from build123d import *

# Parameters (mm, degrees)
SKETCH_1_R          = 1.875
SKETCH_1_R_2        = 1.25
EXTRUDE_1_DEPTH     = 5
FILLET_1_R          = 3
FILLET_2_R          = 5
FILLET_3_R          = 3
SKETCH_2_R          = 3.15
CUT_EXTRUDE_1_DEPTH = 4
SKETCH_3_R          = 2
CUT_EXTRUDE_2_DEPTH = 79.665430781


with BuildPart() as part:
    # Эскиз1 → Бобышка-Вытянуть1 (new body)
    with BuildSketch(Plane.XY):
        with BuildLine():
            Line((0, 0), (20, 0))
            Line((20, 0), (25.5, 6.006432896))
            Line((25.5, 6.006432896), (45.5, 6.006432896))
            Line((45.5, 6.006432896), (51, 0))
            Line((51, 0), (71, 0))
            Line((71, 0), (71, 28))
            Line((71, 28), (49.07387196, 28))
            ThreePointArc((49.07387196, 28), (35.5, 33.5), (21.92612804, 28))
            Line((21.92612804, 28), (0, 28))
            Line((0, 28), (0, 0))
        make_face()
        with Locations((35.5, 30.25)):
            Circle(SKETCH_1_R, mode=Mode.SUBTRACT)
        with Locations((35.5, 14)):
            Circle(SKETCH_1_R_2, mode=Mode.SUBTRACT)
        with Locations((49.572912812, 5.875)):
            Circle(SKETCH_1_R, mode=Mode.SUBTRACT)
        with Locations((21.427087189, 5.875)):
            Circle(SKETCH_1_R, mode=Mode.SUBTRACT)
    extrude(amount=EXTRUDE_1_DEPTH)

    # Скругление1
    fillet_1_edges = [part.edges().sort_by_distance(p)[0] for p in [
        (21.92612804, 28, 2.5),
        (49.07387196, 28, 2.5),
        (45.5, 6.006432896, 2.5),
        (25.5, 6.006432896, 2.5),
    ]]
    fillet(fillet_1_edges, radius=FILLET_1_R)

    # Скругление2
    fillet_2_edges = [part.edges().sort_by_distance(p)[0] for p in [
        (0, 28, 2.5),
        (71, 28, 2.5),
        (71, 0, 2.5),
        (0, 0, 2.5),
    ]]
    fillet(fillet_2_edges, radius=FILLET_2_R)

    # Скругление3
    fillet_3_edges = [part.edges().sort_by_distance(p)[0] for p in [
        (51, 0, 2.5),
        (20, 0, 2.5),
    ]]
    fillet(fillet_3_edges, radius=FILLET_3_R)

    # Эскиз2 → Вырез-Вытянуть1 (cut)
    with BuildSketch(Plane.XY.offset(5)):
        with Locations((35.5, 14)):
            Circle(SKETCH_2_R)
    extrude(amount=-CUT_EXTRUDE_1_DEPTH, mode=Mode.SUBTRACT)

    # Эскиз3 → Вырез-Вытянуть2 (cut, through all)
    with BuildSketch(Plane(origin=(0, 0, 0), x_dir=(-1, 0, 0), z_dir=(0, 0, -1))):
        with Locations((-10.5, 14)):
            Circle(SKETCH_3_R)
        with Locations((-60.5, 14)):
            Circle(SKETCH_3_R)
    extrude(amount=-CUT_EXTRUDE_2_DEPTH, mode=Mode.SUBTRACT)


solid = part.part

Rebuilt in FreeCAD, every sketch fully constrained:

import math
import FreeCAD as App
import Part
import Sketcher

V = App.Vector


def edges_at(feature, points):
    """Names of the edges that pass closest to the given points."""
    edges = feature.Shape.Edges
    near = lambda p: min(range(len(edges)), key=lambda i: edges[i].distToShape(Part.Vertex(*p))[0])
    return sorted({f"Edge{near(p) + 1}" for p in points})

doc = App.newDocument("Part")
body = doc.addObject("PartDesign::Body", "Body")

sketch1 = body.newObject("Sketcher::SketchObject", "Sketch")
sketch1.AttachmentSupport = (doc.getObject("XY_Plane"), [""])
sketch1.MapMode = "FlatFace"
sketch1.addGeometry(Part.LineSegment(V(0, 0, 0), V(20, 0, 0)), False)
sketch1.addGeometry(Part.LineSegment(V(20, 0, 0), V(25.5, 6, 0)), False)
sketch1.addGeometry(Part.LineSegment(V(25.5, 6, 0), V(45.5, 6, 0)), False)
sketch1.addGeometry(Part.LineSegment(V(45.5, 6, 0), V(51, 0, 0)), False)
sketch1.addGeometry(Part.LineSegment(V(51, 0, 0), V(71, 0, 0)), False)
sketch1.addGeometry(Part.LineSegment(V(71, 0, 0), V(71, 28, 0)), False)
sketch1.addGeometry(Part.LineSegment(V(71, 28, 0), V(49.1, 28, 0)), False)
sketch1.addGeometry(Part.ArcOfCircle(Part.Circle(V(35.5, 14, 0), V(0, 0, 1), 19.5), math.radians(46), math.radians(134)), False)
sketch1.addGeometry(Part.LineSegment(V(21.9, 28, 0), V(0, 28, 0)), False)
sketch1.addGeometry(Part.LineSegment(V(0, 28, 0), V(0, 0, 0)), False)
sketch1.addGeometry(Part.Circle(V(21.4, 5.9, 0), V(0, 0, 1), 1.9), False)
sketch1.addGeometry(Part.Circle(V(35.5, 14, 0), V(0, 0, 1), 1.2), False)
sketch1.addGeometry(Part.Circle(V(49.6, 5.9, 0), V(0, 0, 1), 1.9), False)
sketch1.addGeometry(Part.Circle(V(35.5, 30.2, 0), V(0, 0, 1), 1.9), False)
sketch1.addConstraint(Sketcher.Constraint("Coincident", 0, 2, 1, 1))
sketch1.addConstraint(Sketcher.Constraint("Coincident", 1, 2, 2, 1))
sketch1.addConstraint(Sketcher.Constraint("Coincident", 2, 2, 3, 1))
sketch1.addConstraint(Sketcher.Constraint("Coincident", 3, 2, 4, 1))
sketch1.addConstraint(Sketcher.Constraint("Coincident", 4, 2, 5, 1))
sketch1.addConstraint(Sketcher.Constraint("Coincident", 5, 2, 6, 1))
sketch1.addConstraint(Sketcher.Constraint("Coincident", 6, 2, 7, 1))
sketch1.addConstraint(Sketcher.Constraint("Coincident", 7, 2, 8, 1))
sketch1.addConstraint(Sketcher.Constraint("Coincident", 8, 2, 9, 1))
sketch1.addConstraint(Sketcher.Constraint("Coincident", 9, 2, 0, 1))
sketch1.addConstraint(Sketcher.Constraint("Horizontal", 0))
sketch1.addConstraint(Sketcher.Constraint("Horizontal", 2))
sketch1.addConstraint(Sketcher.Constraint("Horizontal", 4))
sketch1.addConstraint(Sketcher.Constraint("Vertical", 5))
sketch1.addConstraint(Sketcher.Constraint("Horizontal", 6))
sketch1.addConstraint(Sketcher.Constraint("Horizontal", 8))
sketch1.addConstraint(Sketcher.Constraint("Vertical", 9))
sketch1.addConstraint(Sketcher.Constraint("Coincident", 9, 2, -1, 1))
sketch1.addConstraint(Sketcher.Constraint("Coincident", 11, 3, 7, 3))
sketch1.addConstraint(Sketcher.Constraint("Equal", 10, 12))
sketch1.addConstraint(Sketcher.Constraint("Equal", 12, 13))
sketch1.addConstraint(Sketcher.Constraint("PointOnObject", 3, 2, -1))
sketch1.addConstraint(Sketcher.Constraint("Horizontal", 10, 3, 12, 3))
sketch1.addConstraint(Sketcher.Constraint("Horizontal", 6, 2, 7, 2))
sketch1.addConstraint(Sketcher.Constraint("Vertical", 11, 3, 13, 3))
sketch1.addConstraint(Sketcher.Constraint("Equal", 0, 2))
sketch1.addConstraint(Sketcher.Constraint("Equal", 2, 4))
sketch1.addConstraint(Sketcher.Constraint("Equal", 6, 8))
sketch1.addConstraint(Sketcher.Constraint("Equal", 1, 3))
sketch1.addConstraint(Sketcher.Constraint("Diameter", 11, 2.5))
sketch1.addConstraint(Sketcher.Constraint("Radius", 7, 19.5))
sketch1.addConstraint(Sketcher.Constraint("Diameter", 10, 3.75))
sketch1.addConstraint(Sketcher.Constraint("DistanceX", 0, 1, 0, 2, 20.0))
sketch1.addConstraint(Sketcher.Constraint("DistanceY", 5, 1, 5, 2, 28.0))
sketch1.addConstraint(Sketcher.Constraint("DistanceY", -1, 1, 7, 3, 14.0))
sketch1.addConstraint(Sketcher.Constraint("DistanceX", -1, 1, 3, 2, 51.0))
sketch1.addConstraint(Sketcher.Constraint("DistanceY", -1, 1, 13, 3, 30.25))
sketch1.addConstraint(Sketcher.Constraint("DistanceY", -1, 1, 10, 3, 5.875))
sketch1.addConstraint(Sketcher.Constraint("DistanceX", 6, 2, 12, 3, 0.499041))
sketch1.addConstraint(Sketcher.Constraint("DistanceX", 10, 3, 7, 2, 0.499041))
sketch1.addConstraint(Sketcher.Constraint("Distance", 1, 8.144153))
pad1 = body.newObject("PartDesign::Pad", "Pad")
pad1.Profile = sketch1
pad1.Length = 5
doc.recompute()

fillet = body.newObject("PartDesign::Fillet", "Fillet")
fillet.Base = (pad1, edges_at(pad1, [
    (21.926, 28, 2.5),
    (49.074, 28, 2.5),
    (45.5, 6.006, 2.5),
    (25.5, 6.006, 2.5),
]))
fillet.Radius = 3
doc.recompute()

fillet2 = body.newObject("PartDesign::Fillet", "Fillet001")
fillet2.Base = (fillet, edges_at(fillet, [
    (0, 28, 2.5),
    (71, 28, 2.5),
    (71, 0, 2.5),
    (0, 0, 2.5),
]))
fillet2.Radius = 5
doc.recompute()

fillet3 = body.newObject("PartDesign::Fillet", "Fillet002")
fillet3.Base = (fillet2, edges_at(fillet2, [(51, 0, 2.5), (20, 0, 2.5)]))
fillet3.Radius = 3

sketch2 = body.newObject("Sketcher::SketchObject", "Sketch001")
sketch2.AttachmentSupport = (doc.getObject("XY_Plane"), [""])
sketch2.MapMode = "FlatFace"
sketch2.AttachmentOffset = App.Placement(V(0, 0, 5), App.Rotation())
sketch2.addGeometry(Part.Circle(V(35.5, 14, 0), V(0, 0, 1), 3.1), False)
sketch2.addConstraint(Sketcher.Constraint("Diameter", 0, 6.3))
sketch2.addConstraint(Sketcher.Constraint("DistanceY", -1, 1, 0, 3, 14.0))
sketch2.addConstraint(Sketcher.Constraint("DistanceX", -1, 1, 0, 3, 35.5))
pocket1 = body.newObject("PartDesign::Pocket", "Pocket")
pocket1.Profile = sketch2
pocket1.Length = 4

sketch3 = body.newObject("Sketcher::SketchObject", "Sketch002")
sketch3.AttachmentSupport = (doc.getObject("XY_Plane"), [""])
sketch3.MapMode = "FlatFace"
sketch3.addGeometry(Part.Circle(V(10.5, 14, 0), V(0, 0, 1), 2), False)
sketch3.addGeometry(Part.Circle(V(60.5, 14, 0), V(0, 0, 1), 2), False)
sketch3.addConstraint(Sketcher.Constraint("Equal", 0, 1))
sketch3.addConstraint(Sketcher.Constraint("Horizontal", 0, 3, 1, 3))
sketch3.addConstraint(Sketcher.Constraint("Diameter", 0, 4.0))
sketch3.addConstraint(Sketcher.Constraint("DistanceY", -1, 1, 0, 3, 14.0))
sketch3.addConstraint(Sketcher.Constraint("DistanceX", 0, 3, 1, 3, 50.0))
sketch3.addConstraint(Sketcher.Constraint("DistanceX", -1, 1, 0, 3, 10.5))
pocket2 = body.newObject("PartDesign::Pocket", "Pocket001")
pocket2.Profile = sketch3
pocket2.Type = "ThroughAll"
pocket2.Reversed = True

doc.recompute()
